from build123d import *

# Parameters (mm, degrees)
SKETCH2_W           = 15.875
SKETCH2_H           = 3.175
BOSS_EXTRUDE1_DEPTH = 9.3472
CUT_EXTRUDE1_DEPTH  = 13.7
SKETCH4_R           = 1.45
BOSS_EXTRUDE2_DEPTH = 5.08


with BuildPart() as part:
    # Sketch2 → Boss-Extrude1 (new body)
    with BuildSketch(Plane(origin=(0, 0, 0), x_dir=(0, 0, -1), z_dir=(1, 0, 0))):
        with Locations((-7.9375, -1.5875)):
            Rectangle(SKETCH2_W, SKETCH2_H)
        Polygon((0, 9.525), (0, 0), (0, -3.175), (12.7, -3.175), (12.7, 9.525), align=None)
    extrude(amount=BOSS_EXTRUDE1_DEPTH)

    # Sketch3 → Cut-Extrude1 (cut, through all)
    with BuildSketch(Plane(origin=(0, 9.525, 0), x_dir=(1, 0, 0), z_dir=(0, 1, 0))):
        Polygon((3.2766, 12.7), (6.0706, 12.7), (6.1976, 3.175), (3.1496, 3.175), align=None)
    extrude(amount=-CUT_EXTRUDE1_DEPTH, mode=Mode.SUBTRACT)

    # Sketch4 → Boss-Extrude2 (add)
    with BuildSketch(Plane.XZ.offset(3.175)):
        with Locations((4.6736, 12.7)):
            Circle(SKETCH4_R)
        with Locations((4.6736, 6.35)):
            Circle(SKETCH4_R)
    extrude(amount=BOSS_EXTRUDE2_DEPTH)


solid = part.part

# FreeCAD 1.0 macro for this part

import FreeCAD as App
import Part
import Sketcher

V = App.Vector
Q = App.Units.Quantity

doc = App.newDocument("Part")
params = doc.addObject("Spreadsheet::Sheet", "Params")
for row, (alias, value) in enumerate([
    ("sketch1_width", "0.5 in"),
    ("sketch1_width2", "0.125 in"),
    ("sketch1_height", "1.125 in"),
    ("pad1_length", "0.368 in"),
    ("sketch2_width", "0.11 in"),
    ("sketch2_width2", "0.12 in"),
    ("pad2_length", "0.2 in"),
], start=1):
    params.set(f"A{row}", alias)
    params.set(f"B{row}", "=" + value)
    params.setAlias(f"B{row}", alias)

body = doc.addObject("PartDesign::Body", "Body")

# Sketch on YZ plane
sketch1 = doc.addObject("Sketcher::SketchObject", "Sketch")
body.addObject(sketch1)
sketch1.AttachmentSupport = (doc.YZ_Plane, [""])
sketch1.MapMode = "FlatFace"
sketch1.addGeometry([
    Part.LineSegment(V(0, 15.875, 0), V(-3.175, 15.875, 0)),  # 0
    Part.LineSegment(V(-3.175, 15.875, 0), V(-3.175, -12.7, 0)),  # 1
    Part.LineSegment(V(-3.175, -12.7, 0), V(9.525, -12.7, 0)),  # 2
    Part.LineSegment(V(9.525, -12.7, 0), V(9.525, 0, 0)),  # 3
    Part.LineSegment(V(9.525, 0, 0), V(0, 0, 0)),  # 4
    Part.LineSegment(V(0, 0, 0), V(0, 15.875, 0)),  # 5
], False)
sketch1.addConstraint([
    Sketcher.Constraint("Coincident", 0, 2, 1, 1),
    Sketcher.Constraint("Coincident", 1, 2, 2, 1),
    Sketcher.Constraint("Coincident", 2, 2, 3, 1),
    Sketcher.Constraint("Coincident", 3, 2, 4, 1),
    Sketcher.Constraint("Coincident", 4, 2, 5, 1),
    Sketcher.Constraint("Coincident", 5, 2, 0, 1),
    Sketcher.Constraint("Horizontal", 0),
    Sketcher.Constraint("Vertical", 1),
    Sketcher.Constraint("Horizontal", 2),
    Sketcher.Constraint("Vertical", 3),
    Sketcher.Constraint("Horizontal", 4),
    Sketcher.Constraint("Vertical", 5),
    Sketcher.Constraint("Coincident", 4, 2, -1, 1),
    Sketcher.Constraint("Equal", 2, 3),
    Sketcher.Constraint("DistanceX", 2, 1, 2, 2, Q("0.5 in")),
    Sketcher.Constraint("DistanceX", 0, 2, 0, 1, Q("0.125 in")),
    Sketcher.Constraint("DistanceY", 1, 2, 1, 1, Q("1.125 in")),
])
sketch1.setExpression("Constraints[14]", "Params.sketch1_width")
sketch1.setExpression("Constraints[15]", "Params.sketch1_width2")
sketch1.setExpression("Constraints[16]", "Params.sketch1_height")
pad1 = doc.addObject("PartDesign::Pad", "Pad")
body.addObject(pad1)
pad1.Profile = sketch1
pad1.setExpression("Length", "Params.pad1_length")

# Sketch on XZ plane
sketch2 = doc.addObject("Sketcher::SketchObject", "Sketch001")
body.addObject(sketch2)
sketch2.AttachmentSupport = (doc.XZ_Plane, [""])
sketch2.MapMode = "FlatFace"
sketch2.AttachmentOffset = App.Placement(V(0, 0, -0.375 * 25.4), App.Rotation())
sketch2.addGeometry([
    Part.LineSegment(V(6.0706, -12.7, 0), V(3.2766, -12.7, 0)),
    Part.LineSegment(V(3.2766, -12.7, 0), V(3.1496, -3.175, 0)),
    Part.LineSegment(V(3.1496, -3.175, 0), V(6.1976, -3.175, 0)),
    Part.LineSegment(V(6.1976, -3.175, 0), V(6.0706, -12.7, 0)),
], False)
sketch2.addConstraint([
    Sketcher.Constraint("Coincident", 0, 2, 1, 1),
    Sketcher.Constraint("Coincident", 1, 2, 2, 1),
    Sketcher.Constraint("Coincident", 2, 2, 3, 1),
    Sketcher.Constraint("Coincident", 3, 2, 0, 1),
    Sketcher.Constraint("Horizontal", 0),
    Sketcher.Constraint("Horizontal", 2),
    Sketcher.Constraint("Equal", 1, 3),
    Sketcher.Constraint("DistanceX", 0, 2, 0, 1, Q("0.11 in")),
    Sketcher.Constraint("DistanceX", 2, 1, 2, 2, Q("0.12 in")),
    Sketcher.Constraint("DistanceY", 0, 2, -1, 1, Q("0.5 in")),
    Sketcher.Constraint("DistanceX", -1, 1, 0, 2, Q("0.129 in")),
    Sketcher.Constraint("DistanceY", 1, 2, -1, 1, Q("0.125 in")),
])
sketch2.setExpression("Constraints[7]", "Params.sketch2_width")
sketch2.setExpression("Constraints[8]", "Params.sketch2_width2")
pocket1 = doc.addObject("PartDesign::Pocket", "Pocket")
body.addObject(pocket1)
pocket1.Profile = sketch2
pocket1.Type = "ThroughAll"
pocket1.Reversed = True

# Sketch on XZ plane
sketch3 = doc.addObject("Sketcher::SketchObject", "Sketch002")
body.addObject(sketch3)
sketch3.AttachmentSupport = (doc.XZ_Plane, [""])
sketch3.MapMode = "FlatFace"
sketch3.AttachmentOffset = App.Placement(V(0, 0, 0.125 * 25.4), App.Rotation())
sketch3.addGeometry([
    Part.Circle(V(4.6736, 12.7, 0), V(0, 0, 1), 1.45),
    Part.Circle(V(4.6736, 6.35, 0), V(0, 0, 1), 1.45),
], False)
sketch3.addConstraint([
    Sketcher.Constraint("Equal", 0, 1),
    Sketcher.Constraint("Vertical", 0, 3, 1, 3),
    Sketcher.Constraint("DistanceY", -1, 1, 0, 3, Q("0.5 in")),
    Sketcher.Constraint("Diameter", 0, Q("2.9 mm")),
    Sketcher.Constraint("DistanceY", -1, 1, 1, 3, Q("0.25 in")),
    Sketcher.Constraint("DistanceX", -1, 1, 0, 3, Q("0.184 in")),
])
pad2 = doc.addObject("PartDesign::Pad", "Pad001")
body.addObject(pad2)
pad2.Profile = sketch3
pad2.setExpression("Length", "Params.pad2_length")

doc.recompute()
